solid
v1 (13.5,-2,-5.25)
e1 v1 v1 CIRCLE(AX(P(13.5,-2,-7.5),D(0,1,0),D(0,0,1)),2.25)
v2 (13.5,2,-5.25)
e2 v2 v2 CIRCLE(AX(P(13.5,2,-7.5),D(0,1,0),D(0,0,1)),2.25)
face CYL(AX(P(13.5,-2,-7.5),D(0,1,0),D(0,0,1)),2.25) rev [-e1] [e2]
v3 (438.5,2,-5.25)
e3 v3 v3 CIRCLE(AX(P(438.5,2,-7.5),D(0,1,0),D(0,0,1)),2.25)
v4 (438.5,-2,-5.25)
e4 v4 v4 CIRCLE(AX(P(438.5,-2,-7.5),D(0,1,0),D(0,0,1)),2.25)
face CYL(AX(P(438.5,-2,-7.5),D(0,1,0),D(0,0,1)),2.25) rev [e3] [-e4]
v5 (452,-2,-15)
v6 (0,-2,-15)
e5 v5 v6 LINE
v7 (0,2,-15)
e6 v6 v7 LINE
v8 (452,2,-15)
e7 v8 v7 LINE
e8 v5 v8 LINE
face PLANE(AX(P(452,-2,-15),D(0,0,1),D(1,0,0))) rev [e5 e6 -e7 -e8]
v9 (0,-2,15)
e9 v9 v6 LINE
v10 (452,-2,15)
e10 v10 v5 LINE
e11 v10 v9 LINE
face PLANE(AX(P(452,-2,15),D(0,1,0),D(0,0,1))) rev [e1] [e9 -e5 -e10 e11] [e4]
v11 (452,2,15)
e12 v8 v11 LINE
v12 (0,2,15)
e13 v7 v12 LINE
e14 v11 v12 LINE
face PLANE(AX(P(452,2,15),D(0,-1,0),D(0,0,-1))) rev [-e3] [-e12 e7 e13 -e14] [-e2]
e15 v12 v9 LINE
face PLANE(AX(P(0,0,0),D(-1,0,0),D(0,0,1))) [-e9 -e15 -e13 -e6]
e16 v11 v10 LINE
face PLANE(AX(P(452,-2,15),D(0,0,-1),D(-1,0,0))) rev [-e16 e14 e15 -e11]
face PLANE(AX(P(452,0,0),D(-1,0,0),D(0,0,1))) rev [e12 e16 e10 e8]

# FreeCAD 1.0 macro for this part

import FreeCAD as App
import Part
import Sketcher
from FreeCAD import Vector

doc = App.newDocument("Part")
body = doc.addObject("PartDesign::Body", "Body")

sketch1 = body.newObject("Sketcher::SketchObject", "Sketch")
sketch1.AttachmentSupport = (doc.getObject("YZ_Plane"), [""])
sketch1.MapMode = "FlatFace"
sketch1.addGeometry(Part.LineSegment(Vector(2, 15, 0), Vector(-2, 15, 0)), False)
sketch1.addGeometry(Part.LineSegment(Vector(-2, 15, 0), Vector(-2, -15, 0)), False)
sketch1.addGeometry(Part.LineSegment(Vector(-2, -15, 0), Vector(2, -15, 0)), False)
sketch1.addGeometry(Part.LineSegment(Vector(2, -15, 0), Vector(2, 15, 0)), False)
sketch1.addConstraint(Sketcher.Constraint("Coincident", 0, 2, 1, 1))
sketch1.addConstraint(Sketcher.Constraint("Coincident", 1, 2, 2, 1))
sketch1.addConstraint(Sketcher.Constraint("Coincident", 2, 2, 3, 1))
sketch1.addConstraint(Sketcher.Constraint("Coincident", 3, 2, 0, 1))
sketch1.addConstraint(Sketcher.Constraint("Horizontal", 0))
sketch1.addConstraint(Sketcher.Constraint("Vertical", 1))
sketch1.addConstraint(Sketcher.Constraint("Horizontal", 2))
sketch1.addConstraint(Sketcher.Constraint("Vertical", 3))
sketch1.addConstraint(Sketcher.Constraint("Symmetric", 0, 2, 2, 2, -1, 1))
sketch1.addConstraint(Sketcher.Constraint("DistanceX", 0, 2, 0, 1, 4.0))
sketch1.addConstraint(Sketcher.Constraint("DistanceY", 1, 2, 1, 1, 30.0))
pad1 = body.newObject("PartDesign::Pad", "Pad")
pad1.Profile = sketch1
pad1.Length = 452

sketch2 = body.newObject("Sketcher::SketchObject", "Sketch001")
sketch2.AttachmentSupport = (doc.getObject("XZ_Plane"), [""])
sketch2.MapMode = "FlatFace"
sketch2.AttachmentOffset = App.Placement(Vector(0, 0, -2), App.Rotation())
sketch2.addGeometry(Part.Circle(Vector(13.5, -7.5, 0), Vector(0, 0, 1), 2.2), False)
sketch2.addGeometry(Part.Circle(Vector(438.5, -7.5, 0), Vector(0, 0, 1), 2.2), False)
sketch2.addConstraint(Sketcher.Constraint("Equal", 0, 1))
sketch2.addConstraint(Sketcher.Constraint("Horizontal", 0, 3, 1, 3))
sketch2.addConstraint(Sketcher.Constraint("Diameter", 0, 4.5))
sketch2.addConstraint(Sketcher.Constraint("DistanceX", 0, 3, 1, 3, 425.0))
sketch2.addConstraint(Sketcher.Constraint("DistanceX", -1, 1, 0, 3, 13.5))
sketch2.addConstraint(Sketcher.Constraint("DistanceY", 0, 3, -1, 1, 7.5))
pocket1 = body.newObject("PartDesign::Pocket", "Pocket")
pocket1.Profile = sketch2
pocket1.Type = "ThroughAll"
pocket1.Reversed = True

doc.recompute()
